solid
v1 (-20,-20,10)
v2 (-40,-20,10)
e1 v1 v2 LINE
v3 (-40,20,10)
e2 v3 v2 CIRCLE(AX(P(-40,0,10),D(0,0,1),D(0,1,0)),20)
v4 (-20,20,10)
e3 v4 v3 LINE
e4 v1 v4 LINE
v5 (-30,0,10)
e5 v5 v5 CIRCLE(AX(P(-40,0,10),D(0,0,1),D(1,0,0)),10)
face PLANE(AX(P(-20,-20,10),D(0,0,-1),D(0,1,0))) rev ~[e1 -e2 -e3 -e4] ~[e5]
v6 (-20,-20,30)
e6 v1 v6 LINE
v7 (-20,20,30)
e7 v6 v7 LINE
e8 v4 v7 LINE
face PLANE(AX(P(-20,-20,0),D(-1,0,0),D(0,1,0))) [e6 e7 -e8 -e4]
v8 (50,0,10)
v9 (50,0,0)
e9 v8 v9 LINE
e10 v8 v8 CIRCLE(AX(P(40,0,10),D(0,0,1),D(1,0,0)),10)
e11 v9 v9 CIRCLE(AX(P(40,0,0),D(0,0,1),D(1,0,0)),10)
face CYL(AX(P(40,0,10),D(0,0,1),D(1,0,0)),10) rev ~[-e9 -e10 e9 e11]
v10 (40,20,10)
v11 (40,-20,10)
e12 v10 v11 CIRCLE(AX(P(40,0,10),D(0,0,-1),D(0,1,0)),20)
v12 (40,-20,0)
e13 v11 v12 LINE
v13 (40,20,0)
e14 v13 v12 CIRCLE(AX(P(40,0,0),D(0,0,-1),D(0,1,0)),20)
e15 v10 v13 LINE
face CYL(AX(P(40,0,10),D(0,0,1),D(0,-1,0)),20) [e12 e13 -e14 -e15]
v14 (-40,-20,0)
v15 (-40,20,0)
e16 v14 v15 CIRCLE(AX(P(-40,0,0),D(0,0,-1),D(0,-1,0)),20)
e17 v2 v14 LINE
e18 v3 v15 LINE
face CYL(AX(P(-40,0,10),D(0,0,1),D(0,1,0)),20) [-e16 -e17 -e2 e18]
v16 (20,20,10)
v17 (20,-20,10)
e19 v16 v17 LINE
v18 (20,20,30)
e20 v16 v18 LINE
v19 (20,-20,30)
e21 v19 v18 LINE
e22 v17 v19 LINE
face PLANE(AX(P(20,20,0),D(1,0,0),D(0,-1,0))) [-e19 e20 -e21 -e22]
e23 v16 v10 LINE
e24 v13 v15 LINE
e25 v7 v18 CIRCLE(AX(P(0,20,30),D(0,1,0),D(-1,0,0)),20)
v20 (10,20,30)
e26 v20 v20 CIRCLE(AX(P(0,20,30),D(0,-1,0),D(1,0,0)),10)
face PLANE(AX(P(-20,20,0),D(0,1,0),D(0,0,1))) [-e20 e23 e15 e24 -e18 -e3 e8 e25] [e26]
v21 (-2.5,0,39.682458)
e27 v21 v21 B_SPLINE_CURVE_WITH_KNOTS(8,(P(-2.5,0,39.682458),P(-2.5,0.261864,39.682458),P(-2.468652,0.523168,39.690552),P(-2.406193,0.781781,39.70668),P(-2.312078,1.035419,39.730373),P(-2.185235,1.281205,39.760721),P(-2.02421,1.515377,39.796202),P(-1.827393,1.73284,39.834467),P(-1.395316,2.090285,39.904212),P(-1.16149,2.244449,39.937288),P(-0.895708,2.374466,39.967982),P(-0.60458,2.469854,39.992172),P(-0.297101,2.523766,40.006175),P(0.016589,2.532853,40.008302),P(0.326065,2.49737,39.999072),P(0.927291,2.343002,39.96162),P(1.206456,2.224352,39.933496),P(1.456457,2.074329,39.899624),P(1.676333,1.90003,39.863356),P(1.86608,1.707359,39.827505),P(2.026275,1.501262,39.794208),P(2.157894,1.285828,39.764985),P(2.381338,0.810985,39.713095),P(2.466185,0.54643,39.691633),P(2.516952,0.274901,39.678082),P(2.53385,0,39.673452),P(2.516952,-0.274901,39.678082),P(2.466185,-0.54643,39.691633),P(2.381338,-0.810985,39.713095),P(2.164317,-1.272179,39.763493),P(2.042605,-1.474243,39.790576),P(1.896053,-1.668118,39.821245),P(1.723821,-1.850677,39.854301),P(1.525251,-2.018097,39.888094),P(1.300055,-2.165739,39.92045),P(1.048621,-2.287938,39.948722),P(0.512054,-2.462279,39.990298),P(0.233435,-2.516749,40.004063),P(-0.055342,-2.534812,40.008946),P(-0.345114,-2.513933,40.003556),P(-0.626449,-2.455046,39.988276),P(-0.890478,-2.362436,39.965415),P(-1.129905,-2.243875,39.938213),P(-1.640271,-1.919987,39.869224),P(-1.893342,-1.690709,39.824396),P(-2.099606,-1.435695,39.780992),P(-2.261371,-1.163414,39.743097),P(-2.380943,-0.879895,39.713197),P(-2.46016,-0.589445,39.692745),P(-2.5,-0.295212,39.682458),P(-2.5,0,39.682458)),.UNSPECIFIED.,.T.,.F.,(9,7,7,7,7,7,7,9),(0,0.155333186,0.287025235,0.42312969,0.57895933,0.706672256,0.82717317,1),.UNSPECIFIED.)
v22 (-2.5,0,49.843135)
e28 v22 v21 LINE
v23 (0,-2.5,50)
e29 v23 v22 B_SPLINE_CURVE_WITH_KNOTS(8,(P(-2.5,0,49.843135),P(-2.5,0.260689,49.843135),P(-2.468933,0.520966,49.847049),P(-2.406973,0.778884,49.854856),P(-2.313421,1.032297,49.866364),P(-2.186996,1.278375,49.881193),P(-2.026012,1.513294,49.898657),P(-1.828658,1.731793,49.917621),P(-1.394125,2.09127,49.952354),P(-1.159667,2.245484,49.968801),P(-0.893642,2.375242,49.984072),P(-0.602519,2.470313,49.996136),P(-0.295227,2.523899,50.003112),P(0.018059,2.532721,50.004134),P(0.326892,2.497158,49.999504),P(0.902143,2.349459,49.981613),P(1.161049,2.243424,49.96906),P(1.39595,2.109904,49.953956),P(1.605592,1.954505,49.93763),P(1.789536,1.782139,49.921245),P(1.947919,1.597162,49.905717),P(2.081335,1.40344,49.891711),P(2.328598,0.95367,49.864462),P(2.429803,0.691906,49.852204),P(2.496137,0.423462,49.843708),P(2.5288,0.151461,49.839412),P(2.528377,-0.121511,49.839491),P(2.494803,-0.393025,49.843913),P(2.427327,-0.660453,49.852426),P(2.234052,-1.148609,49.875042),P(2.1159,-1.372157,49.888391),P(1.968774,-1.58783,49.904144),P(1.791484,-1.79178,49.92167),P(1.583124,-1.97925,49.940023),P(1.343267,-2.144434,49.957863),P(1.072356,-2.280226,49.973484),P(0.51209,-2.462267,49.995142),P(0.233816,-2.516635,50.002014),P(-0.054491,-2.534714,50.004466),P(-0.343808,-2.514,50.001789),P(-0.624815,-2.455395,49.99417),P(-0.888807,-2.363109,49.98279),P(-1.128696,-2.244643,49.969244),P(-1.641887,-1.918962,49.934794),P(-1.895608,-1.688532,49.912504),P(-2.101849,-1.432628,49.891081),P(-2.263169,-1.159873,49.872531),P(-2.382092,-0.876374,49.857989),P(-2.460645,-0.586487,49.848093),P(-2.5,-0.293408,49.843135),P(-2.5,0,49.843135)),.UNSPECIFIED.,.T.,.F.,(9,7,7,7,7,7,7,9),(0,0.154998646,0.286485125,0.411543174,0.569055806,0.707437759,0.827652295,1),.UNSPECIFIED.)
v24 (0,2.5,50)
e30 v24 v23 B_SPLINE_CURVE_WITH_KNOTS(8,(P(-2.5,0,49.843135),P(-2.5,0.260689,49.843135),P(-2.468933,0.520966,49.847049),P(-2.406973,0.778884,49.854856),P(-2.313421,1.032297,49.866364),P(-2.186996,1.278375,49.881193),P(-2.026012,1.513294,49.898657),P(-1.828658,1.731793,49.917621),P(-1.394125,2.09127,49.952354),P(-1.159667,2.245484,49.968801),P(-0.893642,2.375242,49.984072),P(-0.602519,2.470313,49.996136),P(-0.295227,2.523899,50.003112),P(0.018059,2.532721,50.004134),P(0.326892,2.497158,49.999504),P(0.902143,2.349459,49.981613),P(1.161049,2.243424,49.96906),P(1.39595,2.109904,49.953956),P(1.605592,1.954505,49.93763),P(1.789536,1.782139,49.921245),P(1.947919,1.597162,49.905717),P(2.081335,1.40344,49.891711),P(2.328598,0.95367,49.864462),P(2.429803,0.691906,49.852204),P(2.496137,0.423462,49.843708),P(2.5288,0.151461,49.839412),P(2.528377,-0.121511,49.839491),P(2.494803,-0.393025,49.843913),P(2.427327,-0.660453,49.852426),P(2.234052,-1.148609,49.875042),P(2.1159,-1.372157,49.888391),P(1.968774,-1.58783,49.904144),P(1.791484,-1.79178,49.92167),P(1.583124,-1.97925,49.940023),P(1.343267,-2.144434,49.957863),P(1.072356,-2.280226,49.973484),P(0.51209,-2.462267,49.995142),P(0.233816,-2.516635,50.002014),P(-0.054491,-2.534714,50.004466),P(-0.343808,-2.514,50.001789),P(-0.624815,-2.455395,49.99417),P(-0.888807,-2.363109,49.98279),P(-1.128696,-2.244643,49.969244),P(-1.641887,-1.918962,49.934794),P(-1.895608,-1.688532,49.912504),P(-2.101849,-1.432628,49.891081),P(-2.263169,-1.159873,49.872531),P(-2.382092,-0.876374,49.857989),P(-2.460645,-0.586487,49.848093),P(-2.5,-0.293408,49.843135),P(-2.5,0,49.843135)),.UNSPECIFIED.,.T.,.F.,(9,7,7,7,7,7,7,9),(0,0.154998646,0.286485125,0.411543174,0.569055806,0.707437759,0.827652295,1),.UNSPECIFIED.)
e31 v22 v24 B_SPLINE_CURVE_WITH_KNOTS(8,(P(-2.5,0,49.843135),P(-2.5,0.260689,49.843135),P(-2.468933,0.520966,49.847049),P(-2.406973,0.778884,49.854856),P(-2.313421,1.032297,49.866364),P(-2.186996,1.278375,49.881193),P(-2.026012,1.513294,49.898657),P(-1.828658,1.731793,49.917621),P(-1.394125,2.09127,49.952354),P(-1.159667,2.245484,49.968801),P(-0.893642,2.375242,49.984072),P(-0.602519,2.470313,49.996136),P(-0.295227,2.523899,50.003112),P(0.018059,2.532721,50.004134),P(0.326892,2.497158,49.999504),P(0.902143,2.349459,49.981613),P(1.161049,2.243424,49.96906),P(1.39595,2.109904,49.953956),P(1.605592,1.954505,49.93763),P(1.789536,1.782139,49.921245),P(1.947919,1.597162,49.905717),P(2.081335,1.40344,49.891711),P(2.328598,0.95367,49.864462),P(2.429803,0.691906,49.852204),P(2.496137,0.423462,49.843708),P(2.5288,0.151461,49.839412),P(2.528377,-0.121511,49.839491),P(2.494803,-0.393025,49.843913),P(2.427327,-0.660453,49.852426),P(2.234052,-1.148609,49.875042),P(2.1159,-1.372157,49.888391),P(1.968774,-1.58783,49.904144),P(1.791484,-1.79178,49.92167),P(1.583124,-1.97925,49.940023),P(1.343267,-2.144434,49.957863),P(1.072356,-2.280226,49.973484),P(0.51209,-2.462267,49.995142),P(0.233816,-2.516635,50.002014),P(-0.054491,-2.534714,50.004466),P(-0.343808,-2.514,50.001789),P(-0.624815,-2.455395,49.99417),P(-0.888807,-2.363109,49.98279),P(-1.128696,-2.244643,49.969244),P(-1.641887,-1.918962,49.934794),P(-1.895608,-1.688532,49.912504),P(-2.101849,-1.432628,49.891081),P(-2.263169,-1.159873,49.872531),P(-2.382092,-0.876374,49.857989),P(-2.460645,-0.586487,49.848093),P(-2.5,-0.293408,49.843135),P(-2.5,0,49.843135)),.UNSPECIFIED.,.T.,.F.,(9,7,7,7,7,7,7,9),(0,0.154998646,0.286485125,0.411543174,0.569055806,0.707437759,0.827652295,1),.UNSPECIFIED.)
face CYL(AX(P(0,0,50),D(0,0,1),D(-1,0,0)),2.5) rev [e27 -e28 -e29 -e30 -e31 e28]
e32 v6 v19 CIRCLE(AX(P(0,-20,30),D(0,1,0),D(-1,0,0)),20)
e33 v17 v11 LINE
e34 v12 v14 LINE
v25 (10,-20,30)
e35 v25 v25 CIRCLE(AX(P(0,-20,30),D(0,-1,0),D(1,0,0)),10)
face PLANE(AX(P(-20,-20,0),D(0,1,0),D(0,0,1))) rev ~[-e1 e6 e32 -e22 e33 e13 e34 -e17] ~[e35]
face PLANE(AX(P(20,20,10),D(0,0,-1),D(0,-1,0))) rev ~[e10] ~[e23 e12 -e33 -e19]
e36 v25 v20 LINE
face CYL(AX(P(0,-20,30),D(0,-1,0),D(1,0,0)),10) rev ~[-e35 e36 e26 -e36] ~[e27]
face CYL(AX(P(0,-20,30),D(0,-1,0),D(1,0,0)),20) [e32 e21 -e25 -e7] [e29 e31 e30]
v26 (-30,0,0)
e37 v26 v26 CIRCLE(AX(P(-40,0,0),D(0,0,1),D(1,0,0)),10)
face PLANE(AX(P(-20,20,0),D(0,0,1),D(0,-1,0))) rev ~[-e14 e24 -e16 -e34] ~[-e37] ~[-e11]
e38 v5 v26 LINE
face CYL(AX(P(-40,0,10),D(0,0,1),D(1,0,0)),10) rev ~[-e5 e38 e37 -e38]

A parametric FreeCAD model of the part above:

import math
import FreeCAD as App
import Part
import Sketcher
from FreeCAD import Vector

doc = App.newDocument("Part")
body = doc.addObject("PartDesign::Body", "Body")

# Sketch on XY plane
sketch1 = body.newObject("Sketcher::SketchObject", "Sketch")
sketch1.AttachmentSupport = (doc.getObject("XY_Plane"), [""])
sketch1.MapMode = "FlatFace"
sketch1.addGeometry([
    Part.LineSegment(Vector(20, 20, 0), Vector(-20, 20, 0)),
    Part.LineSegment(Vector(-20, 20, 0), Vector(-20, -20, 0)),
    Part.LineSegment(Vector(-20, -20, 0), Vector(20, -20, 0)),
    Part.LineSegment(Vector(20, -20, 0), Vector(20, 20, 0)),
], False)
sketch1.addConstraint([
    Sketcher.Constraint("Coincident", 0, 2, 1, 1),
    Sketcher.Constraint("Coincident", 1, 2, 2, 1),
    Sketcher.Constraint("Coincident", 2, 2, 3, 1),
    Sketcher.Constraint("Coincident", 3, 2, 0, 1),
    Sketcher.Constraint("Horizontal", 0),
    Sketcher.Constraint("Vertical", 1),
    Sketcher.Constraint("Horizontal", 2),
    Sketcher.Constraint("Vertical", 3),
    Sketcher.Constraint("Symmetric", 0, 2, 2, 2, -1, 1),
    Sketcher.Constraint("Equal", 2, 1),
    Sketcher.Constraint("DistanceX", 0, 2, 0, 1, 40.0),
])
pad1 = body.newObject("PartDesign::Pad", "Pad")
pad1.Profile = sketch1
pad1.Length = 50

# Sketch on YZ plane
sketch2 = body.newObject("Sketcher::SketchObject", "Sketch001")
sketch2.AttachmentSupport = (doc.getObject("YZ_Plane"), [""])
sketch2.MapMode = "FlatFace"
sketch2.AttachmentOffset = App.Placement(Vector(0, 0, 20), App.Rotation())
sketch2.addGeometry([
    Part.LineSegment(Vector(-20, 0, 0), Vector(20, 0, 0)),
    Part.LineSegment(Vector(20, 0, 0), Vector(20, 10, 0)),
    Part.LineSegment(Vector(20, 10, 0), Vector(-20, 10, 0)),
    Part.LineSegment(Vector(-20, 10, 0), Vector(-20, 0, 0)),
], False)
sketch2.addConstraint([
    Sketcher.Constraint("Coincident", 0, 2, 1, 1),
    Sketcher.Constraint("Coincident", 1, 2, 2, 1),
    Sketcher.Constraint("Coincident", 2, 2, 3, 1),
    Sketcher.Constraint("Coincident", 3, 2, 0, 1),
    Sketcher.Constraint("Horizontal", 0),
    Sketcher.Constraint("Vertical", 1),
    Sketcher.Constraint("Horizontal", 2),
    Sketcher.Constraint("Vertical", 3),
    Sketcher.Constraint("Symmetric", 0, 2, 3, 2, -1, 1),
    Sketcher.Constraint("DistanceY", 1, 1, 1, 2, 10.0),
    Sketcher.Constraint("DistanceX", 0, 1, 0, 2, 40.0),
])
pad2 = body.newObject("PartDesign::Pad", "Pad001")
pad2.Profile = sketch2
pad2.Length = 40

# Sketch on YZ plane
sketch3 = body.newObject("Sketcher::SketchObject", "Sketch002")
sketch3.AttachmentSupport = (doc.getObject("YZ_Plane"), [""])
sketch3.MapMode = "FlatFace"
sketch3.AttachmentOffset = App.Placement(Vector(0, 0, -20), App.Rotation())
sketch3.addGeometry([
    Part.LineSegment(Vector(20, 10, 0), Vector(20, 0, 0)),
    Part.LineSegment(Vector(20, 0, 0), Vector(-20, 0, 0)),
    Part.LineSegment(Vector(-20, 0, 0), Vector(-20, 10, 0)),
    Part.LineSegment(Vector(-20, 10, 0), Vector(20, 10, 0)),
], False)
sketch3.addConstraint([
    Sketcher.Constraint("Coincident", 0, 2, 1, 1),
    Sketcher.Constraint("Coincident", 1, 2, 2, 1),
    Sketcher.Constraint("Coincident", 2, 2, 3, 1),
    Sketcher.Constraint("Coincident", 3, 2, 0, 1),
    Sketcher.Constraint("Vertical", 0),
    Sketcher.Constraint("Horizontal", 1),
    Sketcher.Constraint("Vertical", 2),
    Sketcher.Constraint("Horizontal", 3),
    Sketcher.Constraint("Symmetric", 0, 2, 1, 2, -1, 1),
    Sketcher.Constraint("DistanceY", 0, 2, 0, 1, 10.0),
    Sketcher.Constraint("DistanceX", 1, 2, 1, 1, 40.0),
])
pad3 = body.newObject("PartDesign::Pad", "Pad002")
pad3.Profile = sketch3
pad3.Length = 40
pad3.Reversed = True

# Sketch on XY plane
sketch4 = body.newObject("Sketcher::SketchObject", "Sketch003")
sketch4.AttachmentSupport = (doc.getObject("XY_Plane"), [""])
sketch4.MapMode = "FlatFace"
sketch4.AttachmentOffset = App.Placement(Vector(0, 0, 10), App.Rotation())
sketch4.addGeometry([
    Part.ArcOfCircle(Part.Circle(Vector(40, 0, 0), Vector(0, 0, 1), 20), math.radians(0), math.radians(90)),  # 0
    Part.LineSegment(Vector(60, 0, 0), Vector(60, 20, 0)),  # 1
    Part.LineSegment(Vector(60, 20, 0), Vector(40, 20, 0)),  # 2
    Part.ArcOfCircle(Part.Circle(Vector(40, 0, 0), Vector(0, 0, 1), 20), math.radians(-90), math.radians(0)),  # 3
    Part.LineSegment(Vector(40, -20, 0), Vector(60, -20, 0)),  # 4
    Part.LineSegment(Vector(60, -20, 0), Vector(60, 0, 0)),  # 5
    Part.ArcOfCircle(Part.Circle(Vector(-40, 0, 0), Vector(0, 0, 1), 20), math.radians(90), math.radians(180)),  # 6
    Part.LineSegment(Vector(-40, 20, 0), Vector(-60, 20, 0)),  # 7
    Part.LineSegment(Vector(-60, 20, 0), Vector(-60, 0, 0)),  # 8
    Part.LineSegment(Vector(-60, -20, 0), Vector(-40, -20, 0)),  # 9
    Part.ArcOfCircle(Part.Circle(Vector(-40, 0, 0), Vector(0, 0, 1), 20), math.radians(180), math.radians(270)),  # 10
    Part.LineSegment(Vector(-60, 0, 0), Vector(-60, -20, 0)),  # 11
    Part.Circle(Vector(-40, 0, 0), Vector(0, 0, 1), 10),  # 12
    Part.Circle(Vector(40, 0, 0), Vector(0, 0, 1), 10),  # 13
], False)
sketch4.addConstraint([
    Sketcher.Constraint("Tangent", 0, 1, 1, 1),
    Sketcher.Constraint("Coincident", 1, 2, 2, 1),
    Sketcher.Constraint("Tangent", 2, 2, 0, 2),
    Sketcher.Constraint("Tangent", 3, 1, 4, 1),
    Sketcher.Constraint("Coincident", 4, 2, 5, 1),
    Sketcher.Constraint("Tangent", 5, 2, 3, 2),
    Sketcher.Constraint("Tangent", 6, 1, 7, 1),
    Sketcher.Constraint("Coincident", 7, 2, 8, 1),
    Sketcher.Constraint("Tangent", 8, 2, 6, 2),
    Sketcher.Constraint("Tangent", 9, 2, 10, 2),
    Sketcher.Constraint("Tangent", 10, 1, 11, 1),
    Sketcher.Constraint("Coincident", 11, 2, 9, 1),
    Sketcher.Constraint("Vertical", 1),
    Sketcher.Constraint("Horizontal", 2),
    Sketcher.Constraint("Horizontal", 4),
    Sketcher.Constraint("Vertical", 5),
    Sketcher.Constraint("Horizontal", 7),
    Sketcher.Constraint("Vertical", 8),
    Sketcher.Constraint("Horizontal", 9),
    Sketcher.Constraint("Vertical", 11),
    Sketcher.Constraint("Coincident", 3, 3, 0, 3),
    Sketcher.Constraint("Coincident", 10, 3, 6, 3),
    Sketcher.Constraint("Coincident", 12, 3, 6, 3),
    Sketcher.Constraint("Coincident", 13, 3, 0, 3),
    Sketcher.Constraint("Equal", 0, 3),
    Sketcher.Constraint("Equal", 3, 6),
    Sketcher.Constraint("Equal", 6, 10),
    Sketcher.Constraint("Equal", 12, 13),
    Sketcher.Constraint("Symmetric", 0, 3, 6, 3, -1, 1),
    Sketcher.Constraint("PointOnObject", 0, 3, -1),
    Sketcher.Constraint("Diameter", 12, 20.0),
    Sketcher.Constraint("Radius", 0, 20.0),
    Sketcher.Constraint("DistanceX", -1, 1, 0, 3, 40.0),
])
pocket1 = body.newObject("PartDesign::Pocket", "Pocket")
pocket1.Profile = sketch4
pocket1.Type = "ThroughAll"

# Sketch on XZ plane
sketch5 = body.newObject("Sketcher::SketchObject", "Sketch004")
sketch5.AttachmentSupport = (doc.getObject("XZ_Plane"), [""])
sketch5.MapMode = "FlatFace"
sketch5.AttachmentOffset = App.Placement(Vector(0, 0, 20), App.Rotation())
sketch5.addGeometry([
    Part.ArcOfCircle(Part.Circle(Vector(0, 30, 0), Vector(0, 0, 1), 20), math.radians(0), math.radians(90)),  # 0
    Part.LineSegment(Vector(20, 30, 0), Vector(20, 50, 0)),  # 1
    Part.LineSegment(Vector(20, 50, 0), Vector(0, 50, 0)),  # 2
    Part.ArcOfCircle(Part.Circle(Vector(0, 30, 0), Vector(0, 0, 1), 20), math.radians(90), math.radians(180)),  # 3
    Part.LineSegment(Vector(0, 50, 0), Vector(-20, 50, 0)),  # 4
    Part.LineSegment(Vector(-20, 50, 0), Vector(-20, 30, 0)),  # 5
    Part.Circle(Vector(0, 30, 0), Vector(0, 0, 1), 10),  # 6
], False)
sketch5.addConstraint([
    Sketcher.Constraint("Tangent", 0, 1, 1, 1),
    Sketcher.Constraint("Coincident", 1, 2, 2, 1),
    Sketcher.Constraint("Tangent", 2, 2, 0, 2),
    Sketcher.Constraint("Tangent", 3, 1, 4, 1),
    Sketcher.Constraint("Coincident", 4, 2, 5, 1),
    Sketcher.Constraint("Tangent", 5, 2, 3, 2),
    Sketcher.Constraint("Vertical", 1),
    Sketcher.Constraint("Horizontal", 2),
    Sketcher.Constraint("Horizontal", 4),
    Sketcher.Constraint("Vertical", 5),
    Sketcher.Constraint("Coincident", 3, 3, 0, 3),
    Sketcher.Constraint("Coincident", 6, 3, 0, 3),
    Sketcher.Constraint("Equal", 0, 3),
    Sketcher.Constraint("PointOnObject", 0, 3, -2),
    Sketcher.Constraint("Diameter", 6, 20.0),
    Sketcher.Constraint("Radius", 0, 20.0),
    Sketcher.Constraint("DistanceY", -1, 1, 0, 3, 30.0),
])
pocket2 = body.newObject("PartDesign::Pocket", "Pocket001")
pocket2.Profile = sketch5
pocket2.Type = "ThroughAll"

# Sketch on XY plane
sketch6 = body.newObject("Sketcher::SketchObject", "Sketch005")
sketch6.AttachmentSupport = (doc.getObject("XY_Plane"), [""])
sketch6.MapMode = "FlatFace"
sketch6.AttachmentOffset = App.Placement(Vector(0, 0, 50), App.Rotation())
sketch6.addGeometry(Part.Circle(Vector(0, 0, 0), Vector(0, 0, 1), 2.5), False)
sketch6.addConstraint([
    Sketcher.Constraint("Coincident", 0, 3, -1, 1),
    Sketcher.Constraint("Diameter", 0, 5.0),
])
pocket3 = body.newObject("PartDesign::Pocket", "Pocket002")
pocket3.Profile = sketch6
pocket3.Length = 12

doc.recompute()
